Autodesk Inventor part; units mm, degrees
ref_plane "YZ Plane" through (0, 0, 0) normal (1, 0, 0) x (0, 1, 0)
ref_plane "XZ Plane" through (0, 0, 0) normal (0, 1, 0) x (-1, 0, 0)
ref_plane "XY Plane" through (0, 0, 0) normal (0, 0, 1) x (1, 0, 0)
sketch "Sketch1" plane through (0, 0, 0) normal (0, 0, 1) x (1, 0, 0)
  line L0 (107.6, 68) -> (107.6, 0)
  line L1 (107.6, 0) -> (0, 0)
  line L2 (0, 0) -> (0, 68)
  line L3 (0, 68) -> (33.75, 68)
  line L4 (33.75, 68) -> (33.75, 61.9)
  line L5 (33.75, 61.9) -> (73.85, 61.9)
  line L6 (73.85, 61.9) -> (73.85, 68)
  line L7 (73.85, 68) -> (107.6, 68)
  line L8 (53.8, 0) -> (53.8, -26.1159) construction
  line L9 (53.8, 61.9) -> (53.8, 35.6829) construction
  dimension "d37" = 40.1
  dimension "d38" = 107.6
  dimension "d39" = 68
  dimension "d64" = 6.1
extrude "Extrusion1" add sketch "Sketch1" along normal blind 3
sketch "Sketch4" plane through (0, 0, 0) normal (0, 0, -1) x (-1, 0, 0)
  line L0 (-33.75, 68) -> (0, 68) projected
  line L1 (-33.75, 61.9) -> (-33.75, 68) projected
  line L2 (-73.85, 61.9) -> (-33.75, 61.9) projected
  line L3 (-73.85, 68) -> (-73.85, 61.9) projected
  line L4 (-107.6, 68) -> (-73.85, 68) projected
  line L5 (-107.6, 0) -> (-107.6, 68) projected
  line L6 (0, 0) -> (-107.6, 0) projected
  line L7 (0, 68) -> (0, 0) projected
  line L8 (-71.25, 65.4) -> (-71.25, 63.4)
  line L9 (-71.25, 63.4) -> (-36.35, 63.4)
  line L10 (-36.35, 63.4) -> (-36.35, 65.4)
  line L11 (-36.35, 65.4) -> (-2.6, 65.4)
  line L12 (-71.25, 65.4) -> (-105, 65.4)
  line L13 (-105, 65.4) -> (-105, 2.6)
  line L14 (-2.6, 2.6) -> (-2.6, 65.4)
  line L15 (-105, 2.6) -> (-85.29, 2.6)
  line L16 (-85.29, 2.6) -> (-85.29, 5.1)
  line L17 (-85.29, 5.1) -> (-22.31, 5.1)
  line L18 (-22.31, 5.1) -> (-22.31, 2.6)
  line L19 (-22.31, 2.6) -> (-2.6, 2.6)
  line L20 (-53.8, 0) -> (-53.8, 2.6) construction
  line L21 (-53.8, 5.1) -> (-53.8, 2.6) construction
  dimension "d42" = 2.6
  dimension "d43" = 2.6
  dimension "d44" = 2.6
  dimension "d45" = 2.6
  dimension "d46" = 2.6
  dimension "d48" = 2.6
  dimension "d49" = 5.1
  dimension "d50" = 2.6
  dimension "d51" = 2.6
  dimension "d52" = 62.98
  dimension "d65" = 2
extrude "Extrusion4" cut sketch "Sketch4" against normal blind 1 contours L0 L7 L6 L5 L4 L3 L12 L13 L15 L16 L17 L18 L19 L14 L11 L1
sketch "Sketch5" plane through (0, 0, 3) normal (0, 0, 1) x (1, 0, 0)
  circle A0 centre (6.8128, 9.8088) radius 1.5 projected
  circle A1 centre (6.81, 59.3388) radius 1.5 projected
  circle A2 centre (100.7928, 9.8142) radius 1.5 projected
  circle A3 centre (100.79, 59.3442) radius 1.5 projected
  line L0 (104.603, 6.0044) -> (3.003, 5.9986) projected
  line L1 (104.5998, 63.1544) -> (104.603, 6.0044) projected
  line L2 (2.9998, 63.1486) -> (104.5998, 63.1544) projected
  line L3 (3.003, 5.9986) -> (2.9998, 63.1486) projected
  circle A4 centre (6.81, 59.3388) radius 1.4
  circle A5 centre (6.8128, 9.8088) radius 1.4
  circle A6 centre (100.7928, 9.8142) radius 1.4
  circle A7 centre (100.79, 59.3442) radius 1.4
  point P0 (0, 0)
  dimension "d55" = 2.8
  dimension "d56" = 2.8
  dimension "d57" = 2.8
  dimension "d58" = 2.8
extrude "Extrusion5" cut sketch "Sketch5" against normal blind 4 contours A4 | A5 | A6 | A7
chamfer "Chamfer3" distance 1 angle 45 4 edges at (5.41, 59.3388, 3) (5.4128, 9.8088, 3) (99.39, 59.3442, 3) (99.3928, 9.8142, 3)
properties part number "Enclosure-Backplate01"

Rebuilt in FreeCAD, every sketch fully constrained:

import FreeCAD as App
import Part
import Sketcher
from FreeCAD import Vector
Q = App.Units.Quantity


def edges_at(feature, points):
    """Names of the edges that pass closest to the given points."""
    edges = feature.Shape.Edges
    near = lambda p: min(range(len(edges)), key=lambda i: edges[i].distToShape(Part.Vertex(*p))[0])
    return sorted({f"Edge{near(p) + 1}" for p in points})


def add_polygon(sketch, points):
    """Adds a closed chain of lines whose ends are joined by coincident constraints."""
    first, n = sketch.GeometryCount, len(points)
    for a, b in zip(points, points[1:] + points[:1]):
        sketch.addGeometry(Part.LineSegment(App.Vector(*a, 0), App.Vector(*b, 0)), False)
    for i in range(n):
        sketch.addConstraint(Sketcher.Constraint("Coincident", first + i, 2, first + (i + 1) % n, 1))

doc = App.newDocument("Part")
params = doc.addObject("Spreadsheet::Sheet", "Params")
for row, (alias, value) in enumerate([
    ("sketch1_height", "68 mm"),
    ("sketch1_width", "40.1 mm"),
    ("sketch1_width2", "107.6 mm"),
    ("sketch1_height2", "6.1 mm"),
    ("pad1_length", "3 mm"),
    ("sketch2_height", "2.6 mm"),
    ("sketch2_width", "62.98 mm"),
    ("sketch2_height2", "68 mm"),
    ("sketch2_width2", "107.6 mm"),
    ("sketch2_width3", "33.75 mm"),
    ("pocket1_length", "1 mm"),
    ("sketch3_diameter", "2.8 mm"),
    ("pocket2_length", "4 mm"),
    ("chamfer_size", "1 mm"),
], start=1):
    params.set(f"A{row}", alias)
    params.set(f"B{row}", "=" + value)
    params.setAlias(f"B{row}", alias)

body = doc.addObject("PartDesign::Body", "Body")

# Sketch on XY plane
sketch1 = body.newObject("Sketcher::SketchObject", "Sketch")
sketch1.AttachmentSupport = (doc.getObject("XY_Plane"), [""])
sketch1.MapMode = "FlatFace"
add_polygon(sketch1, [(108, 0), (108, 68), (74, 68), (74, 62), (34, 62), (34, 68), (0, 68), (0, 0)])  # lines 0-7
sketch1.addConstraint(Sketcher.Constraint("Vertical", 0))
sketch1.addConstraint(Sketcher.Constraint("Horizontal", 1))
sketch1.addConstraint(Sketcher.Constraint("Vertical", 2))
sketch1.addConstraint(Sketcher.Constraint("Horizontal", 3))
sketch1.addConstraint(Sketcher.Constraint("Vertical", 4))
sketch1.addConstraint(Sketcher.Constraint("Horizontal", 5))
sketch1.addConstraint(Sketcher.Constraint("Vertical", 6))
sketch1.addConstraint(Sketcher.Constraint("Horizontal", 7))
sketch1.addConstraint(Sketcher.Constraint("Coincident", 6, 2, -1, 1))
sketch1.addConstraint(Sketcher.Constraint("Horizontal", 1, 2, 4, 2))
sketch1.addConstraint(Sketcher.Constraint("Equal", 1, 5))
sketch1.addConstraint(Sketcher.Constraint("DistanceY", 0, 1, 0, 2, Q("68 mm")))
sketch1.addConstraint(Sketcher.Constraint("DistanceX", 3, 2, 3, 1, Q("40.1 mm")))
sketch1.addConstraint(Sketcher.Constraint("DistanceX", 7, 1, 7, 2, Q("107.6 mm")))
sketch1.addConstraint(Sketcher.Constraint("DistanceY", 2, 2, 2, 1, Q("6.1 mm")))
sketch1.setExpression("Constraints[19]", "Params.sketch1_height")
sketch1.setExpression("Constraints[20]", "Params.sketch1_width")
sketch1.setExpression("Constraints[21]", "Params.sketch1_width2")
sketch1.setExpression("Constraints[22]", "Params.sketch1_height2")
pad1 = body.newObject("PartDesign::Pad", "Pad")
pad1.Profile = sketch1
pad1.setExpression("Length", "Params.pad1_length")

# Sketch on XY plane
sketch2 = body.newObject("Sketcher::SketchObject", "Sketch001")
sketch2.AttachmentSupport = (doc.getObject("XY_Plane"), [""])
sketch2.MapMode = "FlatFace"
add_polygon(sketch2, [(0, 68), (33.8, 68), (33.8, 65.4), (2.6, 65.4), (2.6, 2.6), (22.3, 2.6), (22.3, 5.1), (85.3, 5.1), (85.3, 2.6), (105, 2.6), (105, 65.4), (73.8, 65.4), (73.8, 68), (107.6, 68), (107.6, 0), (0, 0)])  # lines 0-15
sketch2.addConstraint(Sketcher.Constraint("Horizontal", 0))
sketch2.addConstraint(Sketcher.Constraint("Vertical", 1))
sketch2.addConstraint(Sketcher.Constraint("Horizontal", 2))
sketch2.addConstraint(Sketcher.Constraint("Vertical", 3))
sketch2.addConstraint(Sketcher.Constraint("Horizontal", 4))
sketch2.addConstraint(Sketcher.Constraint("Vertical", 5))
sketch2.addConstraint(Sketcher.Constraint("Horizontal", 6))
sketch2.addConstraint(Sketcher.Constraint("Vertical", 7))
sketch2.addConstraint(Sketcher.Constraint("Horizontal", 8))
sketch2.addConstraint(Sketcher.Constraint("Vertical", 9))
sketch2.addConstraint(Sketcher.Constraint("Horizontal", 10))
sketch2.addConstraint(Sketcher.Constraint("Vertical", 11))
sketch2.addConstraint(Sketcher.Constraint("Horizontal", 12))
sketch2.addConstraint(Sketcher.Constraint("Vertical", 13))
sketch2.addConstraint(Sketcher.Constraint("Horizontal", 14))
sketch2.addConstraint(Sketcher.Constraint("Vertical", 15))
sketch2.addConstraint(Sketcher.Constraint("Coincident", 14, 2, -1, 1))
sketch2.addConstraint(Sketcher.Constraint("Horizontal", 4, 2, 7, 2))
sketch2.addConstraint(Sketcher.Constraint("Horizontal", 2, 2, 9, 2))
sketch2.addConstraint(Sketcher.Constraint("Horizontal", 0, 2, 11, 2))
sketch2.addConstraint(Sketcher.Constraint("Equal", 4, 8))
sketch2.addConstraint(Sketcher.Constraint("Equal", 2, 10))
sketch2.addConstraint(Sketcher.Constraint("Equal", 0, 12))
sketch2.addConstraint(Sketcher.Constraint("DistanceY", 1, 2, 1, 1, Q("2.6 mm")))
sketch2.addConstraint(Sketcher.Constraint("DistanceX", 6, 1, 6, 2, Q("62.98 mm")))
sketch2.addConstraint(Sketcher.Constraint("DistanceX", -1, 1, 2, 2, Q("2.6 mm")))
sketch2.addConstraint(Sketcher.Constraint("DistanceY", -1, 1, 3, 2, Q("2.6 mm")))
sketch2.addConstraint(Sketcher.Constraint("DistanceY", -1, 1, 5, 2, Q("5.1 mm")))
sketch2.addConstraint(Sketcher.Constraint("DistanceY", 13, 2, 13, 1, Q("68 mm")))
sketch2.addConstraint(Sketcher.Constraint("DistanceX", 14, 2, 14, 1, Q("107.6 mm")))
sketch2.addConstraint(Sketcher.Constraint("DistanceX", 0, 1, 0, 2, Q("33.75 mm")))
sketch2.setExpression("Constraints[39]", "Params.sketch2_height")
sketch2.setExpression("Constraints[40]", "Params.sketch2_width")
sketch2.setExpression("Constraints[44]", "Params.sketch2_height2")
sketch2.setExpression("Constraints[45]", "Params.sketch2_width2")
sketch2.setExpression("Constraints[46]", "Params.sketch2_width3")
pocket1 = body.newObject("PartDesign::Pocket", "Pocket")
pocket1.Profile = sketch2
pocket1.setExpression("Length", "Params.pocket1_length")
pocket1.Reversed = True

# Sketch on XY plane
sketch3 = body.newObject("Sketcher::SketchObject", "Sketch002")
sketch3.AttachmentSupport = (doc.getObject("XY_Plane"), [""])
sketch3.MapMode = "FlatFace"
sketch3.AttachmentOffset = App.Placement(Vector(0, 0, 3), App.Rotation())
sketch3.addGeometry(Part.Circle(Vector(6.8, 59.3, 0), Vector(0, 0, 1), 1.4), False)
sketch3.addGeometry(Part.Circle(Vector(6.8, 9.8, 0), Vector(0, 0, 1), 1.4), False)
sketch3.addGeometry(Part.Circle(Vector(100.8, 9.8, 0), Vector(0, 0, 1), 1.4), False)
sketch3.addGeometry(Part.Circle(Vector(100.8, 59.3, 0), Vector(0, 0, 1), 1.4), False)
sketch3.addConstraint(Sketcher.Constraint("Equal", 0, 1))
sketch3.addConstraint(Sketcher.Constraint("Equal", 1, 2))
sketch3.addConstraint(Sketcher.Constraint("Equal", 2, 3))
sketch3.addConstraint(Sketcher.Constraint("Diameter", 0, Q("2.8 mm")))
sketch3.addConstraint(Sketcher.Constraint("DistanceX", -1, 1, 0, 3, Q("6.81 mm")))
sketch3.addConstraint(Sketcher.Constraint("DistanceX", -1, 1, 3, 3, Q("100.79 mm")))
sketch3.addConstraint(Sketcher.Constraint("DistanceY", 1, 3, 0, 3, Q("49.53 mm")))
sketch3.addConstraint(Sketcher.Constraint("DistanceX", 1, 3, 2, 3, Q("93.98 mm")))
sketch3.addConstraint(Sketcher.Constraint("DistanceY", 2, 3, 3, 3, Q("49.53 mm")))
sketch3.addConstraint(Sketcher.Constraint("DistanceY", -1, 1, 0, 3, Q("59.3388 mm")))
sketch3.addConstraint(Sketcher.Constraint("DistanceX", -1, 1, 1, 3, Q("6.8128 mm")))
sketch3.addConstraint(Sketcher.Constraint("DistanceY", -1, 1, 2, 3, Q("9.8142 mm")))
sketch3.setExpression("Constraints[3]", "Params.sketch3_diameter")
pocket2 = body.newObject("PartDesign::Pocket", "Pocket001")
pocket2.Profile = sketch3
pocket2.setExpression("Length", "Params.pocket2_length")
doc.recompute()

chamfer = body.newObject("PartDesign::Chamfer", "Chamfer")
chamfer.Base = (pocket2, edges_at(pocket2, [
    (5.41, 59.339, 3),
    (5.413, 9.809, 3),
    (99.39, 59.344, 3),
    (99.393, 9.814, 3),
]))
chamfer.setExpression("Size", "Params.chamfer_size")

doc.recompute()
